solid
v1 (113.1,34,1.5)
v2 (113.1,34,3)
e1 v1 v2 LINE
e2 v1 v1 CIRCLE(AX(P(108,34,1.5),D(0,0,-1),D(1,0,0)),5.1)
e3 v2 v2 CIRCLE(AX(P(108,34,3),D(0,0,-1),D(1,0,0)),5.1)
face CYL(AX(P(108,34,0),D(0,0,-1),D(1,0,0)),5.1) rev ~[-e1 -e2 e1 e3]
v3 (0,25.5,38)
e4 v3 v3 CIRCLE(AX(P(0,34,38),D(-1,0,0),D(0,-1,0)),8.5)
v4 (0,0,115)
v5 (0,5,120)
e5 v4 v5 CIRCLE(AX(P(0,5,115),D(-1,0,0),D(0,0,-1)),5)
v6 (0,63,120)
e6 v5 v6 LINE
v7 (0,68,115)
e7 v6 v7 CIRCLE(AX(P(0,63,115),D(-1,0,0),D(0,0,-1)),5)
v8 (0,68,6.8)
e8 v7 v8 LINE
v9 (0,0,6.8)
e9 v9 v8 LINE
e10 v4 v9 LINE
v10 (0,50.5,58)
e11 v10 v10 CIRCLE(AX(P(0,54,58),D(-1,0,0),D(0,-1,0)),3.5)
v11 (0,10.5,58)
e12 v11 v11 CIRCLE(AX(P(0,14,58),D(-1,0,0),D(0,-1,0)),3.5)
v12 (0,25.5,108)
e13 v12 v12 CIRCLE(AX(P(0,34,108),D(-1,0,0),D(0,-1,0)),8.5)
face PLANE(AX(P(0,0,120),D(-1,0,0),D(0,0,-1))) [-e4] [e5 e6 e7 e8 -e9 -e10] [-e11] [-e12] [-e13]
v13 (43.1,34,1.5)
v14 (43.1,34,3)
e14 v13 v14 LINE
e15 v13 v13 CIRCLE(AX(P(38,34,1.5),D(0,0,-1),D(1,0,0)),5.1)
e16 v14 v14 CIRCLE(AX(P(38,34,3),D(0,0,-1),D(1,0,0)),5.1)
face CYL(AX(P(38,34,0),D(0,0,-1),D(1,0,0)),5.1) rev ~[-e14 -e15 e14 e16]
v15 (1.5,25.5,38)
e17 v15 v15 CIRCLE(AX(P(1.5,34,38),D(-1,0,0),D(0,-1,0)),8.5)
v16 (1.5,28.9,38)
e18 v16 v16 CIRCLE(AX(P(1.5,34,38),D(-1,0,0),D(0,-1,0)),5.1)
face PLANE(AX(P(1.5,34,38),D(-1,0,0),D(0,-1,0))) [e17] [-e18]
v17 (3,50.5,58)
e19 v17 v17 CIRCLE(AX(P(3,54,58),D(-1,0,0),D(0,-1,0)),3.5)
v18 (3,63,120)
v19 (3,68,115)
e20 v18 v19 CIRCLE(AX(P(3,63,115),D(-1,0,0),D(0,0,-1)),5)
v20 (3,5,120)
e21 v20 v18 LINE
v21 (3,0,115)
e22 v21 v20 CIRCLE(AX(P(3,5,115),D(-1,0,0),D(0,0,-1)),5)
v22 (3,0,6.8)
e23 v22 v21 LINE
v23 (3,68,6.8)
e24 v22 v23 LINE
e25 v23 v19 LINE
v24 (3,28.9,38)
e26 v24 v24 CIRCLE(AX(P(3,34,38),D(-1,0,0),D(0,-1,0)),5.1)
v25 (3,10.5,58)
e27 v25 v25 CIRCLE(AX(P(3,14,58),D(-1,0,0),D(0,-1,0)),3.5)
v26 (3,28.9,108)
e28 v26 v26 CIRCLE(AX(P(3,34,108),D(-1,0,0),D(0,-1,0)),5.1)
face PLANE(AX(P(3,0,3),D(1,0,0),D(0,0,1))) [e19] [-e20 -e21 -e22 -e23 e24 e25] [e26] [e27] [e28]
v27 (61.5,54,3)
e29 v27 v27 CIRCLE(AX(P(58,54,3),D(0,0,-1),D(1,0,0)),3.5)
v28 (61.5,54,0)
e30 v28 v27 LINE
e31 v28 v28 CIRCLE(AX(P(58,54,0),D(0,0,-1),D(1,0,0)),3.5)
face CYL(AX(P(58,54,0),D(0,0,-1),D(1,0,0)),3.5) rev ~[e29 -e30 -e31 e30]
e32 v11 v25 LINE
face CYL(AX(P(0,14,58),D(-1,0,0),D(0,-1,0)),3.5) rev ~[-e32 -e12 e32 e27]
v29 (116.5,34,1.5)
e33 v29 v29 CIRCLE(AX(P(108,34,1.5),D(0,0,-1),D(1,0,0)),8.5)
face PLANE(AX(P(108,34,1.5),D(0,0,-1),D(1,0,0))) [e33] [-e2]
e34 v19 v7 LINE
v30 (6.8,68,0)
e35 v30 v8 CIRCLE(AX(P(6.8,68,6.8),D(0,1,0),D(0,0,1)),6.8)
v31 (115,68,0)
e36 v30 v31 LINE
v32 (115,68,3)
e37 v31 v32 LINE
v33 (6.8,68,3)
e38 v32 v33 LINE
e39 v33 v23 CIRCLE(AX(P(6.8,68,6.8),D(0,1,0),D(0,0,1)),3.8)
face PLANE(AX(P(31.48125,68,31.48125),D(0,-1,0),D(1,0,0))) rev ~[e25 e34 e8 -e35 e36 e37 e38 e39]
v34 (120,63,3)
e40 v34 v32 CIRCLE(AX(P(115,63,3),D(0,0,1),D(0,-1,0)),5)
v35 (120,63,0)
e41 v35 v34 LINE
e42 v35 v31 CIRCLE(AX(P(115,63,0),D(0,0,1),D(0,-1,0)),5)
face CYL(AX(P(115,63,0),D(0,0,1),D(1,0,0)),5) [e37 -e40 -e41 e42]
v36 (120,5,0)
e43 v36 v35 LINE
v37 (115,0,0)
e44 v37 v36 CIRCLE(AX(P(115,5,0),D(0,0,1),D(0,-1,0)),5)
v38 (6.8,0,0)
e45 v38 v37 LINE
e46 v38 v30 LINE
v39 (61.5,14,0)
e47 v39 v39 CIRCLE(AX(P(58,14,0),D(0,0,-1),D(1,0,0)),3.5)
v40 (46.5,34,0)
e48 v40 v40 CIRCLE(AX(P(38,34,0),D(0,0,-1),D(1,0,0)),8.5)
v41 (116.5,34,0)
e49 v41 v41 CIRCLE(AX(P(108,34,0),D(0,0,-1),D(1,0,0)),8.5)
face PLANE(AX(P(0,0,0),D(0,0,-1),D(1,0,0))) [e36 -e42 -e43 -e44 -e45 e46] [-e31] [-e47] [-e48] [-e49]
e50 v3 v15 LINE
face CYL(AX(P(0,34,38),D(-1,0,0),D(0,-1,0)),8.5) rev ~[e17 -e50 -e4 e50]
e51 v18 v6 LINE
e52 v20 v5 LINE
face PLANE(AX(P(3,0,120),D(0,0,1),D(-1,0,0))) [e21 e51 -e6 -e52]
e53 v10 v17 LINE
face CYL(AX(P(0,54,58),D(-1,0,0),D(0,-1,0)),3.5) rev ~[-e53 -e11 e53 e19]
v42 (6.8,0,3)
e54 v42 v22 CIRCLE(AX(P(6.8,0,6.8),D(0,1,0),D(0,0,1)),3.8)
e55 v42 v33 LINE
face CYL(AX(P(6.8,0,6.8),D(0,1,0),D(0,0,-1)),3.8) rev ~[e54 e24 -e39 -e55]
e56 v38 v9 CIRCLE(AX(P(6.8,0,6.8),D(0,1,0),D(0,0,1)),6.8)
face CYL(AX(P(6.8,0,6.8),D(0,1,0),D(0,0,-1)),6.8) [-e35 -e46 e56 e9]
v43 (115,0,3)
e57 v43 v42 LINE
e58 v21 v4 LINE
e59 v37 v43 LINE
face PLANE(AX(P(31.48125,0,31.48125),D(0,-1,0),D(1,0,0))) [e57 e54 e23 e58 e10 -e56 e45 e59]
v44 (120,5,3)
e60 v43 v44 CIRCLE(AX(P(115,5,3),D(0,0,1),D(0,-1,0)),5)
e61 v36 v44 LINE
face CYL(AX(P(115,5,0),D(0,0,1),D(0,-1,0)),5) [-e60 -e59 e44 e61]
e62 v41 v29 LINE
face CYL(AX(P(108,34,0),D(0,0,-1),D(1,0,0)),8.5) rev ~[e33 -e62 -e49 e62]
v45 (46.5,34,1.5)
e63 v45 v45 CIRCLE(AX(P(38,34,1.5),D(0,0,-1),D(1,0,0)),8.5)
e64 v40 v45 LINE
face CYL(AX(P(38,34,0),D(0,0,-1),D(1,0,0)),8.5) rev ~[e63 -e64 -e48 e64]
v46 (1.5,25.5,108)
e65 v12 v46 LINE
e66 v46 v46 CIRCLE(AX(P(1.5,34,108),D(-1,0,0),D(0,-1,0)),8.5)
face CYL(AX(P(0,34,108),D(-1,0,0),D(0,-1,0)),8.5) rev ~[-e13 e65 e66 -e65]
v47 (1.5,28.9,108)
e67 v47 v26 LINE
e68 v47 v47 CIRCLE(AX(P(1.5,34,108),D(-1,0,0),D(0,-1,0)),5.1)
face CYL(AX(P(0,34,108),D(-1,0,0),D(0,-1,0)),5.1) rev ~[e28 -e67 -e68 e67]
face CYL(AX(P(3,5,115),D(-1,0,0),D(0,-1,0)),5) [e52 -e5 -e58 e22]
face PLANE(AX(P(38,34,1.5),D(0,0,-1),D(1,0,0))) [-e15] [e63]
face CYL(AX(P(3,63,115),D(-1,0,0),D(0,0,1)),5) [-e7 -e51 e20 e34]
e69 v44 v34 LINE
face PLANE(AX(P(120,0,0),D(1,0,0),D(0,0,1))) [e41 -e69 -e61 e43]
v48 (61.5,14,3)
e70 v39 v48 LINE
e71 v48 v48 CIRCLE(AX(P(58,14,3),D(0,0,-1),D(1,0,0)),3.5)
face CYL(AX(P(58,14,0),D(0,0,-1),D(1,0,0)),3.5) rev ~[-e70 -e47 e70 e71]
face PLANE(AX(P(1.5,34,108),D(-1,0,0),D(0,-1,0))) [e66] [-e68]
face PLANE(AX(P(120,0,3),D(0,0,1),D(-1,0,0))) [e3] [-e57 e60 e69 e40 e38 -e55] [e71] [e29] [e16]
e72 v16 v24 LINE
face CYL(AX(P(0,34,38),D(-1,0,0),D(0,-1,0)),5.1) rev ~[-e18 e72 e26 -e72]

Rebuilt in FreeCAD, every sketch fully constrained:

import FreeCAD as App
import Part
import Sketcher


def edges_at(feature, points):
    """Names of the edges that pass closest to the given points."""
    edges = feature.Shape.Edges
    near = lambda p: min(range(len(edges)), key=lambda i: edges[i].distToShape(Part.Vertex(*p))[0])
    return sorted({f"Edge{near(p) + 1}" for p in points})

doc = App.newDocument("Part")
body = doc.addObject("PartDesign::Body", "Body")

# Sketch on XZ plane
sketch1 = doc.addObject("Sketcher::SketchObject", "Sketch")
body.addObject(sketch1)
sketch1.AttachmentSupport = (doc.XZ_Plane, [""])
sketch1.MapMode = "FlatFace"
sketch1.addGeometry([
    Part.LineSegment(App.Vector(3, 120, 0), App.Vector(0, 120, 0)),  # 0
    Part.LineSegment(App.Vector(0, 120, 0), App.Vector(0, 0, 0)),  # 1
    Part.LineSegment(App.Vector(0, 0, 0), App.Vector(120, 0, 0)),  # 2
    Part.LineSegment(App.Vector(120, 0, 0), App.Vector(120, 3, 0)),  # 3
    Part.LineSegment(App.Vector(120, 3, 0), App.Vector(3, 3, 0)),  # 4
    Part.LineSegment(App.Vector(3, 3, 0), App.Vector(3, 120, 0)),  # 5
], False)
sketch1.addConstraint([
    Sketcher.Constraint("Coincident", 0, 2, 1, 1),
    Sketcher.Constraint("Coincident", 1, 2, 2, 1),
    Sketcher.Constraint("Coincident", 2, 2, 3, 1),
    Sketcher.Constraint("Coincident", 3, 2, 4, 1),
    Sketcher.Constraint("Coincident", 4, 2, 5, 1),
    Sketcher.Constraint("Coincident", 5, 2, 0, 1),
    Sketcher.Constraint("Horizontal", 0),
    Sketcher.Constraint("Vertical", 1),
    Sketcher.Constraint("Horizontal", 2),
    Sketcher.Constraint("Vertical", 3),
    Sketcher.Constraint("Horizontal", 4),
    Sketcher.Constraint("Vertical", 5),
    Sketcher.Constraint("Coincident", 1, 2, -1, 1),
    Sketcher.Constraint("Equal", 2, 1),
    Sketcher.Constraint("Equal", 0, 3),
    Sketcher.Constraint("DistanceX", 0, 2, 0, 1, 3.0),
    Sketcher.Constraint("DistanceX", 2, 1, 2, 2, 120.0),
])
pad1 = doc.addObject("PartDesign::Pad", "Pad")
body.addObject(pad1)
pad1.Profile = sketch1
pad1.Length = 68
pad1.Reversed = True
doc.recompute()

fillet = doc.addObject("PartDesign::Fillet", "Fillet")
body.addObject(fillet)
fillet.Base = (pad1, edges_at(pad1, [(3, 34, 3)]))
fillet.Radius = 3.8
doc.recompute()

fillet2 = doc.addObject("PartDesign::Fillet", "Fillet001")
body.addObject(fillet2)
fillet2.Base = (fillet, edges_at(fillet, [(0, 34, 0)]))
fillet2.Radius = 6.8
doc.recompute()

fillet3 = doc.addObject("PartDesign::Fillet", "Fillet002")
body.addObject(fillet3)
fillet3.Base = (fillet2, edges_at(fillet2, [
    (1.5, 0, 120),
    (120, 0, 1.5),
    (120, 68, 1.5),
    (1.5, 68, 120),
]))
fillet3.Radius = 5

# Sketch on XY plane
sketch2 = doc.addObject("Sketcher::SketchObject", "Sketch001")
body.addObject(sketch2)
sketch2.AttachmentSupport = (doc.XY_Plane, [""])
sketch2.MapMode = "FlatFace"
sketch2.addGeometry([
    Part.Circle(App.Vector(108, 34, 0), App.Vector(0, 0, 1), 5.1),
    Part.Circle(App.Vector(38, 34, 0), App.Vector(0, 0, 1), 5.1),
    Part.Circle(App.Vector(58, 14, 0), App.Vector(0, 0, 1), 3.5),
    Part.Circle(App.Vector(58, 54, 0), App.Vector(0, 0, 1), 3.5),
], False)
sketch2.addConstraint([
    Sketcher.Constraint("Equal", 0, 1),
    Sketcher.Constraint("Equal", 2, 3),
    Sketcher.Constraint("Horizontal", 0, 3, 1, 3),
    Sketcher.Constraint("Vertical", 2, 3, 3, 3),
    Sketcher.Constraint("Diameter", 2, 7.0),
    Sketcher.Constraint("Diameter", 0, 10.2),
    Sketcher.Constraint("DistanceX", -1, 1, 0, 3, 108.0),
    Sketcher.Constraint("DistanceY", -1, 1, 0, 3, 34.0),
    Sketcher.Constraint("DistanceX", -1, 1, 1, 3, 38.0),
    Sketcher.Constraint("DistanceX", -1, 1, 2, 3, 58.0),
    Sketcher.Constraint("DistanceY", -1, 1, 2, 3, 14.0),
    Sketcher.Constraint("DistanceY", -1, 1, 3, 3, 54.0),
])
pocket1 = doc.addObject("PartDesign::Pocket", "Pocket")
body.addObject(pocket1)
pocket1.Profile = sketch2
pocket1.Type = "ThroughAll"
pocket1.Reversed = True

# Sketch on YZ plane
sketch3 = doc.addObject("Sketcher::SketchObject", "Sketch002")
body.addObject(sketch3)
sketch3.AttachmentSupport = (doc.YZ_Plane, [""])
sketch3.MapMode = "FlatFace"
sketch3.addGeometry([
    Part.Circle(App.Vector(34, 108, 0), App.Vector(0, 0, 1), 5.1),
    Part.Circle(App.Vector(34, 38, 0), App.Vector(0, 0, 1), 5.1),
    Part.Circle(App.Vector(14, 58, 0), App.Vector(0, 0, 1), 3.5),
    Part.Circle(App.Vector(54, 58, 0), App.Vector(0, 0, 1), 3.5),
], False)
sketch3.addConstraint([
    Sketcher.Constraint("Equal", 0, 1),
    Sketcher.Constraint("Equal", 2, 3),
    Sketcher.Constraint("Horizontal", 2, 3, 3, 3),
    Sketcher.Constraint("Vertical", 0, 3, 1, 3),
    Sketcher.Constraint("Diameter", 2, 7.0),
    Sketcher.Constraint("Diameter", 0, 10.2),
    Sketcher.Constraint("DistanceX", -1, 1, 0, 3, 34.0),
    Sketcher.Constraint("DistanceY", -1, 1, 0, 3, 108.0),
    Sketcher.Constraint("DistanceY", -1, 1, 1, 3, 38.0),
    Sketcher.Constraint("DistanceX", -1, 1, 2, 3, 14.0),
    Sketcher.Constraint("DistanceY", -1, 1, 2, 3, 58.0),
    Sketcher.Constraint("DistanceX", -1, 1, 3, 3, 54.0),
])
pocket2 = doc.addObject("PartDesign::Pocket", "Pocket001")
body.addObject(pocket2)
pocket2.Profile = sketch3
pocket2.Type = "ThroughAll"
pocket2.Reversed = True

# Sketch on YZ plane
sketch4 = doc.addObject("Sketcher::SketchObject", "Sketch003")
body.addObject(sketch4)
sketch4.AttachmentSupport = (doc.YZ_Plane, [""])
sketch4.MapMode = "FlatFace"
sketch4.addGeometry([
    Part.Circle(App.Vector(34, 108, 0), App.Vector(0, 0, 1), 8),
    Part.Circle(App.Vector(34, 38, 0), App.Vector(0, 0, 1), 8),
], False)
sketch4.addConstraint([
    Sketcher.Constraint("Equal", 0, 1),
    Sketcher.Constraint("Vertical", 0, 3, 1, 3),
    Sketcher.Constraint("Diameter", 0, 17.0),
    Sketcher.Constraint("DistanceX", -1, 1, 0, 3, 34.0),
    Sketcher.Constraint("DistanceY", -1, 1, 0, 3, 108.0),
    Sketcher.Constraint("DistanceY", -1, 1, 1, 3, 38.0),
])
pocket3 = doc.addObject("PartDesign::Pocket", "Pocket002")
body.addObject(pocket3)
pocket3.Profile = sketch4
pocket3.Length = 1.5
pocket3.Reversed = True

# Sketch on XY plane
sketch5 = doc.addObject("Sketcher::SketchObject", "Sketch004")
body.addObject(sketch5)
sketch5.AttachmentSupport = (doc.XY_Plane, [""])
sketch5.MapMode = "FlatFace"
sketch5.addGeometry([
    Part.Circle(App.Vector(38, 34, 0), App.Vector(0, 0, 1), 8),
    Part.Circle(App.Vector(108, 34, 0), App.Vector(0, 0, 1), 8),
], False)
sketch5.addConstraint([
    Sketcher.Constraint("Equal", 0, 1),
    Sketcher.Constraint("Horizontal", 0, 3, 1, 3),
    Sketcher.Constraint("Diameter", 0, 17.0),
    Sketcher.Constraint("DistanceX", -1, 1, 0, 3, 38.0),
    Sketcher.Constraint("DistanceY", -1, 1, 0, 3, 34.0),
    Sketcher.Constraint("DistanceX", -1, 1, 1, 3, 108.0),
])
pocket4 = doc.addObject("PartDesign::Pocket", "Pocket003")
body.addObject(pocket4)
pocket4.Profile = sketch5
pocket4.Length = 1.5
pocket4.Reversed = True

doc.recompute()
